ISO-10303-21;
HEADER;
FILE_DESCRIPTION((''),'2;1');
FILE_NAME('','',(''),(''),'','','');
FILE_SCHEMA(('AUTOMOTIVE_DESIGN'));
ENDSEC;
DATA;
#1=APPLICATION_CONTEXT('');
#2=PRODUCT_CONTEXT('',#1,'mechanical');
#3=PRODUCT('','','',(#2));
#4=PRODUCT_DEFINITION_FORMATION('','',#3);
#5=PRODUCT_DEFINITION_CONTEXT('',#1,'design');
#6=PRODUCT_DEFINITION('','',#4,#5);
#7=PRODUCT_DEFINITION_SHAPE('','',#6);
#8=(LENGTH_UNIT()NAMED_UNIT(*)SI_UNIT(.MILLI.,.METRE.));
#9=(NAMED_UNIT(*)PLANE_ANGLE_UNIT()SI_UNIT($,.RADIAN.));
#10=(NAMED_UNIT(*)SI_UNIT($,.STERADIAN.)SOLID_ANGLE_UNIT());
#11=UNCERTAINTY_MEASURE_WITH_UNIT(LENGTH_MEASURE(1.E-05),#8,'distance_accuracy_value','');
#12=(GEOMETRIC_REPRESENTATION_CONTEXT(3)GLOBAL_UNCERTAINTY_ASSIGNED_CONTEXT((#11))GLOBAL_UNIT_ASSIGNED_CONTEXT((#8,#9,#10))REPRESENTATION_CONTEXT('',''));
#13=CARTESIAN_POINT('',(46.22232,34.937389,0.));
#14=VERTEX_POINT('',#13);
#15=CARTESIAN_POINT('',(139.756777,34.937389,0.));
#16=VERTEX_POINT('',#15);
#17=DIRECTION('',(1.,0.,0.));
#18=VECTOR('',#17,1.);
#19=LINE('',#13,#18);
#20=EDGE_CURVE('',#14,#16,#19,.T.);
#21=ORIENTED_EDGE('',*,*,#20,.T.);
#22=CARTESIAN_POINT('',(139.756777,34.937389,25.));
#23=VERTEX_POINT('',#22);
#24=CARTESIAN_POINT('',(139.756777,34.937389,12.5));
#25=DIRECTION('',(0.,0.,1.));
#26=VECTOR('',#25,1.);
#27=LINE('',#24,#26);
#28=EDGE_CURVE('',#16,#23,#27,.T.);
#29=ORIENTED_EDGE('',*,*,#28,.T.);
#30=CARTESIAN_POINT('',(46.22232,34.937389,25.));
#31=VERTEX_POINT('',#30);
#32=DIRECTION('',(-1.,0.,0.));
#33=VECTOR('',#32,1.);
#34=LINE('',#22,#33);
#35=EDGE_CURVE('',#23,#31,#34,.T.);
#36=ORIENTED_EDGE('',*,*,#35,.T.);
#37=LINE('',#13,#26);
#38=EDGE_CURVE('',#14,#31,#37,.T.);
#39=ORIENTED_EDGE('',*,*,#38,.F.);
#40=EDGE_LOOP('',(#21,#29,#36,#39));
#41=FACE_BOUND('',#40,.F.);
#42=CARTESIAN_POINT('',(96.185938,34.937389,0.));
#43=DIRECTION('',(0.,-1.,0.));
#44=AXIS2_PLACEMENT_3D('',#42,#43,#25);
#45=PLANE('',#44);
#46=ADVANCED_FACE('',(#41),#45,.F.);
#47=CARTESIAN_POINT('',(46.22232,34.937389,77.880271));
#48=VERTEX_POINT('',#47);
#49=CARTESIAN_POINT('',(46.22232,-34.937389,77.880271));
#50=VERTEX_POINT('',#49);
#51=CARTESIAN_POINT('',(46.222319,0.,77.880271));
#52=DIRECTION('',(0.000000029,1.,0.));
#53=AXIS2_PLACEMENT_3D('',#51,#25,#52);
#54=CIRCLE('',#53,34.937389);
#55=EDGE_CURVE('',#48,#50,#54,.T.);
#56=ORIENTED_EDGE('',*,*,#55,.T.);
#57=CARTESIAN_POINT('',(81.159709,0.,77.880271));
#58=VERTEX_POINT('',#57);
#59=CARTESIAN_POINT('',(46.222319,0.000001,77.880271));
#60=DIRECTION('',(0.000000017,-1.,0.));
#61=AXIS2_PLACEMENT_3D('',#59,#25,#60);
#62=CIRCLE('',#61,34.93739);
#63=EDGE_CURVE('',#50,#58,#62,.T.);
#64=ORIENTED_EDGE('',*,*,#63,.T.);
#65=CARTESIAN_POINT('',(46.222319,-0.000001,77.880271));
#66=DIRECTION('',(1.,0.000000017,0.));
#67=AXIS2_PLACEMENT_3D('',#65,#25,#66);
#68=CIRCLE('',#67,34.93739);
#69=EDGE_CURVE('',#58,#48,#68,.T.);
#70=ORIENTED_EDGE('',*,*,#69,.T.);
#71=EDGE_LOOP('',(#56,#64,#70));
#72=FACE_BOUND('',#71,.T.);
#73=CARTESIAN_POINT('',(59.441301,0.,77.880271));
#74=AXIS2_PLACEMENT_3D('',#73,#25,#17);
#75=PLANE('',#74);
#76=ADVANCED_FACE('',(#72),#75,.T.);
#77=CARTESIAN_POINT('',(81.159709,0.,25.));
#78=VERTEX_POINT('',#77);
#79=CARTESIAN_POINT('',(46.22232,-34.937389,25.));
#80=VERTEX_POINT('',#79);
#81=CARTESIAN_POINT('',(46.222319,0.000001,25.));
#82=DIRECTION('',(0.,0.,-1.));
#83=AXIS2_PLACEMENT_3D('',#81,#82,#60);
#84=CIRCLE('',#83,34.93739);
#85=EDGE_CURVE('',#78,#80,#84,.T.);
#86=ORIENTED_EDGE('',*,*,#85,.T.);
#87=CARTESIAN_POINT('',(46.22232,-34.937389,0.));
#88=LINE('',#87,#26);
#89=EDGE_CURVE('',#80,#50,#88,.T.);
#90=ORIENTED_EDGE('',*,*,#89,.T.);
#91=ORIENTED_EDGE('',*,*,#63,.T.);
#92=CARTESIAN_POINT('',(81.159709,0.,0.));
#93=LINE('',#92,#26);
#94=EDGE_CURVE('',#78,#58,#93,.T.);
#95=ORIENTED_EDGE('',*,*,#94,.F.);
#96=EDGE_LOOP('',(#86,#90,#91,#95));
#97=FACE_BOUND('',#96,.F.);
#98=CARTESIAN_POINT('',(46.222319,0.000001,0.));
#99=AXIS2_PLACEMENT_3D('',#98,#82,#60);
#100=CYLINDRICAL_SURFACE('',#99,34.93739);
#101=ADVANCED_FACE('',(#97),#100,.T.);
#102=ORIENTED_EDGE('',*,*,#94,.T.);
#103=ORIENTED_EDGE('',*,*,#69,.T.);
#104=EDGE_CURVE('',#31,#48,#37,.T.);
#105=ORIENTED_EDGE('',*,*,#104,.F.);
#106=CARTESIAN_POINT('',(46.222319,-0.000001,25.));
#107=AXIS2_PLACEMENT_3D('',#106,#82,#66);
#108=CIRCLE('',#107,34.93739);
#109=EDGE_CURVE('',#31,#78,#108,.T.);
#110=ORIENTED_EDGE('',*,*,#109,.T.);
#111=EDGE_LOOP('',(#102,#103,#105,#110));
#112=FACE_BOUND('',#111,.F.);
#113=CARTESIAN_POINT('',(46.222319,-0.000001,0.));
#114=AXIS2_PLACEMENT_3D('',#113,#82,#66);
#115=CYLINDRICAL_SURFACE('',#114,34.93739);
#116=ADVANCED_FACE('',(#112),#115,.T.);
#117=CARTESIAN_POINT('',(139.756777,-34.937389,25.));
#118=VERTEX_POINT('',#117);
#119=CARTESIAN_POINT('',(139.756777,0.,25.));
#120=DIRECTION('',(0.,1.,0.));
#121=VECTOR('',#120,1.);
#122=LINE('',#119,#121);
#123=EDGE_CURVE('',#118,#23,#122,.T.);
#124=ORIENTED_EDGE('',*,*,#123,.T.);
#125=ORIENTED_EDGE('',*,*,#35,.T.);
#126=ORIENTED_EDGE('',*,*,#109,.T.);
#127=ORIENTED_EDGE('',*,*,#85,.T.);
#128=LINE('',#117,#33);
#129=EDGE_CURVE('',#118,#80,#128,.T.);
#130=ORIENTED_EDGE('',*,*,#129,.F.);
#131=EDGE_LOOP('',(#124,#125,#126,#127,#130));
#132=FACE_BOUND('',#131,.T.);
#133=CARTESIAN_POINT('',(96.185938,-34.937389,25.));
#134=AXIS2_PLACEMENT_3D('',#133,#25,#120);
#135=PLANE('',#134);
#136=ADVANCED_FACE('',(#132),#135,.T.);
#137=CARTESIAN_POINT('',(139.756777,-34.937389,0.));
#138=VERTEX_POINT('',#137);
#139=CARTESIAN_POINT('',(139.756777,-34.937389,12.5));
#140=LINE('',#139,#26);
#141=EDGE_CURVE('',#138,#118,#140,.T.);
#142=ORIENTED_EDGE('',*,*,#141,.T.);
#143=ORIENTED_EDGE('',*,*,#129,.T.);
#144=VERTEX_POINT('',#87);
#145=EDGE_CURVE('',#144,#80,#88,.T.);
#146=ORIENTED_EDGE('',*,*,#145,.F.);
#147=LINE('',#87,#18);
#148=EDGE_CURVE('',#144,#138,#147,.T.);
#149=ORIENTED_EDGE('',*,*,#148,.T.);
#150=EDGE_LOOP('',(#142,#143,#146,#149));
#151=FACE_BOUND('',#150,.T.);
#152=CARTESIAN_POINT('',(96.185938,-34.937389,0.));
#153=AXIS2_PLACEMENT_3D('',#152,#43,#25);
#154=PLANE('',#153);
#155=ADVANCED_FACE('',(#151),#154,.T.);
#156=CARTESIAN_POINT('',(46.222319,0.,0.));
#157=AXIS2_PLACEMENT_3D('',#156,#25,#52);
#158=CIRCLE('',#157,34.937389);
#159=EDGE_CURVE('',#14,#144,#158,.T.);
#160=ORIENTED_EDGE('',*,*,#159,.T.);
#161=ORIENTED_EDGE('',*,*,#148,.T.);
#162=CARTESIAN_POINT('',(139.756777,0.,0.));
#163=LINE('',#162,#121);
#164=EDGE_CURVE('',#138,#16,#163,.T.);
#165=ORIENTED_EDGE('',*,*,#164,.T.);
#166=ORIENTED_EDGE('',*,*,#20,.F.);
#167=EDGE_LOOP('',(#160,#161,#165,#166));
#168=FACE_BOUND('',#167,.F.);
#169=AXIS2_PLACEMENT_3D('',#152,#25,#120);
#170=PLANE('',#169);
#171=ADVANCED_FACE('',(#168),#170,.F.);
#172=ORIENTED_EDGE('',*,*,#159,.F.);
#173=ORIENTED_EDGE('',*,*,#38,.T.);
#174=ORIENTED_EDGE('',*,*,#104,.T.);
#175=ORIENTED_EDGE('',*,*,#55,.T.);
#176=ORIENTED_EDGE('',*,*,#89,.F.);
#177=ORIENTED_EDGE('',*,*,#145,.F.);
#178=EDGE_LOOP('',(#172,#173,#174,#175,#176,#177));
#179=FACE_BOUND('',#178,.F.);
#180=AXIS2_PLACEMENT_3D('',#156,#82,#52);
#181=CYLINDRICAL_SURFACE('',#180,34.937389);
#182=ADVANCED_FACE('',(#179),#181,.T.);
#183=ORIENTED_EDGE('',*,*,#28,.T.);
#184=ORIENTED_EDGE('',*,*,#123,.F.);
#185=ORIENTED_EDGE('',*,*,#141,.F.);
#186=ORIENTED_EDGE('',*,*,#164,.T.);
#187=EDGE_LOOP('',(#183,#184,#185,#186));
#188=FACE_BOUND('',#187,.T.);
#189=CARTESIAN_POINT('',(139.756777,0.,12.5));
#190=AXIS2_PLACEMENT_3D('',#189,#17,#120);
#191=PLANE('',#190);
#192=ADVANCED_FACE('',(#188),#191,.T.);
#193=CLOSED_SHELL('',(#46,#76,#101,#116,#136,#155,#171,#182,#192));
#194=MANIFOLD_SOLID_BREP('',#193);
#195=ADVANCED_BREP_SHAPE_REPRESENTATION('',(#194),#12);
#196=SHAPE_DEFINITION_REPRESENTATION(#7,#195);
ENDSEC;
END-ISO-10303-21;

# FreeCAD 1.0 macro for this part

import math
import FreeCAD as App
import Part
import Sketcher

V = App.Vector


def add_polygon(sketch, points):
    """Adds a closed chain of lines whose ends are joined by coincident constraints."""
    first, n = sketch.GeometryCount, len(points)
    for a, b in zip(points, points[1:] + points[:1]):
        sketch.addGeometry(Part.LineSegment(App.Vector(*a, 0), App.Vector(*b, 0)), False)
    for i in range(n):
        sketch.addConstraint(Sketcher.Constraint("Coincident", first + i, 2, first + (i + 1) % n, 1))

doc = App.newDocument("Part")
body = doc.addObject("PartDesign::Body", "Body")

sketch1 = body.newObject("Sketcher::SketchObject", "Sketch")
sketch1.AttachmentSupport = (doc.getObject("XY_Plane"), [""])
sketch1.MapMode = "FlatFace"
sketch1.addGeometry([
    Part.LineSegment(V(96, -35, 0), V(96, 35, 0)),
    Part.LineSegment(V(96, 35, 0), V(46, 35, 0)),
    Part.ArcOfCircle(Part.Circle(V(46, 0, 0), V(0, 0, 1), 35), math.radians(90), math.radians(270)),
    Part.LineSegment(V(46, -35, 0), V(96, -35, 0)),
], False)
sketch1.addConstraint([
    Sketcher.Constraint("Coincident", 0, 2, 1, 1),
    Sketcher.Constraint("Tangent", 1, 2, 2, 1),
    Sketcher.Constraint("Tangent", 2, 2, 3, 1),
    Sketcher.Constraint("Coincident", 3, 2, 0, 1),
    Sketcher.Constraint("Vertical", 0),
    Sketcher.Constraint("Horizontal", 1),
    Sketcher.Constraint("Horizontal", 3),
    Sketcher.Constraint("PointOnObject", 2, 3, -1),
    Sketcher.Constraint("Radius", 2, 34.937389),
    Sketcher.Constraint("DistanceX", 1, 2, 1, 1, 49.963618),
    Sketcher.Constraint("DistanceX", -1, 1, 2, 3, 46.222319),
])
pad1 = body.newObject("PartDesign::Pad", "Pad")
pad1.Profile = sketch1
pad1.Length = 25

sketch2 = body.newObject("Sketcher::SketchObject", "Sketch001")
sketch2.AttachmentSupport = (doc.getObject("XY_Plane"), [""])
sketch2.MapMode = "FlatFace"
sketch2.addGeometry([
    Part.ArcOfCircle(Part.Circle(V(46, 0, 0), V(0, 0, 1), 35), math.radians(0), math.radians(90)),
    Part.ArcOfCircle(Part.Circle(V(46, 0, 0), V(0, 0, 1), 35), math.radians(90), math.radians(270)),
    Part.ArcOfCircle(Part.Circle(V(46, 0, 0), V(0, 0, 1), 35), math.radians(-90), math.radians(0)),
], False)
sketch2.addConstraint([
    Sketcher.Constraint("Tangent", 0, 2, 1, 1),
    Sketcher.Constraint("Tangent", 1, 2, 2, 1),
    Sketcher.Constraint("Tangent", 2, 2, 0, 1),
    Sketcher.Constraint("Symmetric", 0, 2, 1, 2, -1),
    Sketcher.Constraint("PointOnObject", 2, 2, -1),
    Sketcher.Constraint("Vertical", 2, 3, 0, 2),
    Sketcher.Constraint("Radius", 0, 34.93739),
    Sketcher.Constraint("DistanceX", -1, 1, 0, 3, 46.222319),
])
pad2 = body.newObject("PartDesign::Pad", "Pad001")
pad2.Profile = sketch2
pad2.Length = 77.880271

sketch3 = body.newObject("Sketcher::SketchObject", "Sketch002")
sketch3.AttachmentSupport = (doc.getObject("YZ_Plane"), [""])
sketch3.MapMode = "FlatFace"
sketch3.AttachmentOffset = App.Placement(V(0, 0, 96.185938), App.Rotation())
add_polygon(sketch3, [(-35, 25), (-35, 0), (35, 0), (35, 25)])
sketch3.addConstraint([
    Sketcher.Constraint("Vertical", 0),
    Sketcher.Constraint("Horizontal", 1),
    Sketcher.Constraint("Vertical", 2),
    Sketcher.Constraint("Horizontal", 3),
    Sketcher.Constraint("Symmetric", 0, 2, 1, 2, -1, 1),
    Sketcher.Constraint("DistanceY", 0, 2, 0, 1, 25.0),
    Sketcher.Constraint("DistanceX", 1, 1, 1, 2, 69.874778),
])
pad3 = body.newObject("PartDesign::Pad", "Pad002")
pad3.Profile = sketch3
pad3.Length = 43.570839

doc.recompute()
